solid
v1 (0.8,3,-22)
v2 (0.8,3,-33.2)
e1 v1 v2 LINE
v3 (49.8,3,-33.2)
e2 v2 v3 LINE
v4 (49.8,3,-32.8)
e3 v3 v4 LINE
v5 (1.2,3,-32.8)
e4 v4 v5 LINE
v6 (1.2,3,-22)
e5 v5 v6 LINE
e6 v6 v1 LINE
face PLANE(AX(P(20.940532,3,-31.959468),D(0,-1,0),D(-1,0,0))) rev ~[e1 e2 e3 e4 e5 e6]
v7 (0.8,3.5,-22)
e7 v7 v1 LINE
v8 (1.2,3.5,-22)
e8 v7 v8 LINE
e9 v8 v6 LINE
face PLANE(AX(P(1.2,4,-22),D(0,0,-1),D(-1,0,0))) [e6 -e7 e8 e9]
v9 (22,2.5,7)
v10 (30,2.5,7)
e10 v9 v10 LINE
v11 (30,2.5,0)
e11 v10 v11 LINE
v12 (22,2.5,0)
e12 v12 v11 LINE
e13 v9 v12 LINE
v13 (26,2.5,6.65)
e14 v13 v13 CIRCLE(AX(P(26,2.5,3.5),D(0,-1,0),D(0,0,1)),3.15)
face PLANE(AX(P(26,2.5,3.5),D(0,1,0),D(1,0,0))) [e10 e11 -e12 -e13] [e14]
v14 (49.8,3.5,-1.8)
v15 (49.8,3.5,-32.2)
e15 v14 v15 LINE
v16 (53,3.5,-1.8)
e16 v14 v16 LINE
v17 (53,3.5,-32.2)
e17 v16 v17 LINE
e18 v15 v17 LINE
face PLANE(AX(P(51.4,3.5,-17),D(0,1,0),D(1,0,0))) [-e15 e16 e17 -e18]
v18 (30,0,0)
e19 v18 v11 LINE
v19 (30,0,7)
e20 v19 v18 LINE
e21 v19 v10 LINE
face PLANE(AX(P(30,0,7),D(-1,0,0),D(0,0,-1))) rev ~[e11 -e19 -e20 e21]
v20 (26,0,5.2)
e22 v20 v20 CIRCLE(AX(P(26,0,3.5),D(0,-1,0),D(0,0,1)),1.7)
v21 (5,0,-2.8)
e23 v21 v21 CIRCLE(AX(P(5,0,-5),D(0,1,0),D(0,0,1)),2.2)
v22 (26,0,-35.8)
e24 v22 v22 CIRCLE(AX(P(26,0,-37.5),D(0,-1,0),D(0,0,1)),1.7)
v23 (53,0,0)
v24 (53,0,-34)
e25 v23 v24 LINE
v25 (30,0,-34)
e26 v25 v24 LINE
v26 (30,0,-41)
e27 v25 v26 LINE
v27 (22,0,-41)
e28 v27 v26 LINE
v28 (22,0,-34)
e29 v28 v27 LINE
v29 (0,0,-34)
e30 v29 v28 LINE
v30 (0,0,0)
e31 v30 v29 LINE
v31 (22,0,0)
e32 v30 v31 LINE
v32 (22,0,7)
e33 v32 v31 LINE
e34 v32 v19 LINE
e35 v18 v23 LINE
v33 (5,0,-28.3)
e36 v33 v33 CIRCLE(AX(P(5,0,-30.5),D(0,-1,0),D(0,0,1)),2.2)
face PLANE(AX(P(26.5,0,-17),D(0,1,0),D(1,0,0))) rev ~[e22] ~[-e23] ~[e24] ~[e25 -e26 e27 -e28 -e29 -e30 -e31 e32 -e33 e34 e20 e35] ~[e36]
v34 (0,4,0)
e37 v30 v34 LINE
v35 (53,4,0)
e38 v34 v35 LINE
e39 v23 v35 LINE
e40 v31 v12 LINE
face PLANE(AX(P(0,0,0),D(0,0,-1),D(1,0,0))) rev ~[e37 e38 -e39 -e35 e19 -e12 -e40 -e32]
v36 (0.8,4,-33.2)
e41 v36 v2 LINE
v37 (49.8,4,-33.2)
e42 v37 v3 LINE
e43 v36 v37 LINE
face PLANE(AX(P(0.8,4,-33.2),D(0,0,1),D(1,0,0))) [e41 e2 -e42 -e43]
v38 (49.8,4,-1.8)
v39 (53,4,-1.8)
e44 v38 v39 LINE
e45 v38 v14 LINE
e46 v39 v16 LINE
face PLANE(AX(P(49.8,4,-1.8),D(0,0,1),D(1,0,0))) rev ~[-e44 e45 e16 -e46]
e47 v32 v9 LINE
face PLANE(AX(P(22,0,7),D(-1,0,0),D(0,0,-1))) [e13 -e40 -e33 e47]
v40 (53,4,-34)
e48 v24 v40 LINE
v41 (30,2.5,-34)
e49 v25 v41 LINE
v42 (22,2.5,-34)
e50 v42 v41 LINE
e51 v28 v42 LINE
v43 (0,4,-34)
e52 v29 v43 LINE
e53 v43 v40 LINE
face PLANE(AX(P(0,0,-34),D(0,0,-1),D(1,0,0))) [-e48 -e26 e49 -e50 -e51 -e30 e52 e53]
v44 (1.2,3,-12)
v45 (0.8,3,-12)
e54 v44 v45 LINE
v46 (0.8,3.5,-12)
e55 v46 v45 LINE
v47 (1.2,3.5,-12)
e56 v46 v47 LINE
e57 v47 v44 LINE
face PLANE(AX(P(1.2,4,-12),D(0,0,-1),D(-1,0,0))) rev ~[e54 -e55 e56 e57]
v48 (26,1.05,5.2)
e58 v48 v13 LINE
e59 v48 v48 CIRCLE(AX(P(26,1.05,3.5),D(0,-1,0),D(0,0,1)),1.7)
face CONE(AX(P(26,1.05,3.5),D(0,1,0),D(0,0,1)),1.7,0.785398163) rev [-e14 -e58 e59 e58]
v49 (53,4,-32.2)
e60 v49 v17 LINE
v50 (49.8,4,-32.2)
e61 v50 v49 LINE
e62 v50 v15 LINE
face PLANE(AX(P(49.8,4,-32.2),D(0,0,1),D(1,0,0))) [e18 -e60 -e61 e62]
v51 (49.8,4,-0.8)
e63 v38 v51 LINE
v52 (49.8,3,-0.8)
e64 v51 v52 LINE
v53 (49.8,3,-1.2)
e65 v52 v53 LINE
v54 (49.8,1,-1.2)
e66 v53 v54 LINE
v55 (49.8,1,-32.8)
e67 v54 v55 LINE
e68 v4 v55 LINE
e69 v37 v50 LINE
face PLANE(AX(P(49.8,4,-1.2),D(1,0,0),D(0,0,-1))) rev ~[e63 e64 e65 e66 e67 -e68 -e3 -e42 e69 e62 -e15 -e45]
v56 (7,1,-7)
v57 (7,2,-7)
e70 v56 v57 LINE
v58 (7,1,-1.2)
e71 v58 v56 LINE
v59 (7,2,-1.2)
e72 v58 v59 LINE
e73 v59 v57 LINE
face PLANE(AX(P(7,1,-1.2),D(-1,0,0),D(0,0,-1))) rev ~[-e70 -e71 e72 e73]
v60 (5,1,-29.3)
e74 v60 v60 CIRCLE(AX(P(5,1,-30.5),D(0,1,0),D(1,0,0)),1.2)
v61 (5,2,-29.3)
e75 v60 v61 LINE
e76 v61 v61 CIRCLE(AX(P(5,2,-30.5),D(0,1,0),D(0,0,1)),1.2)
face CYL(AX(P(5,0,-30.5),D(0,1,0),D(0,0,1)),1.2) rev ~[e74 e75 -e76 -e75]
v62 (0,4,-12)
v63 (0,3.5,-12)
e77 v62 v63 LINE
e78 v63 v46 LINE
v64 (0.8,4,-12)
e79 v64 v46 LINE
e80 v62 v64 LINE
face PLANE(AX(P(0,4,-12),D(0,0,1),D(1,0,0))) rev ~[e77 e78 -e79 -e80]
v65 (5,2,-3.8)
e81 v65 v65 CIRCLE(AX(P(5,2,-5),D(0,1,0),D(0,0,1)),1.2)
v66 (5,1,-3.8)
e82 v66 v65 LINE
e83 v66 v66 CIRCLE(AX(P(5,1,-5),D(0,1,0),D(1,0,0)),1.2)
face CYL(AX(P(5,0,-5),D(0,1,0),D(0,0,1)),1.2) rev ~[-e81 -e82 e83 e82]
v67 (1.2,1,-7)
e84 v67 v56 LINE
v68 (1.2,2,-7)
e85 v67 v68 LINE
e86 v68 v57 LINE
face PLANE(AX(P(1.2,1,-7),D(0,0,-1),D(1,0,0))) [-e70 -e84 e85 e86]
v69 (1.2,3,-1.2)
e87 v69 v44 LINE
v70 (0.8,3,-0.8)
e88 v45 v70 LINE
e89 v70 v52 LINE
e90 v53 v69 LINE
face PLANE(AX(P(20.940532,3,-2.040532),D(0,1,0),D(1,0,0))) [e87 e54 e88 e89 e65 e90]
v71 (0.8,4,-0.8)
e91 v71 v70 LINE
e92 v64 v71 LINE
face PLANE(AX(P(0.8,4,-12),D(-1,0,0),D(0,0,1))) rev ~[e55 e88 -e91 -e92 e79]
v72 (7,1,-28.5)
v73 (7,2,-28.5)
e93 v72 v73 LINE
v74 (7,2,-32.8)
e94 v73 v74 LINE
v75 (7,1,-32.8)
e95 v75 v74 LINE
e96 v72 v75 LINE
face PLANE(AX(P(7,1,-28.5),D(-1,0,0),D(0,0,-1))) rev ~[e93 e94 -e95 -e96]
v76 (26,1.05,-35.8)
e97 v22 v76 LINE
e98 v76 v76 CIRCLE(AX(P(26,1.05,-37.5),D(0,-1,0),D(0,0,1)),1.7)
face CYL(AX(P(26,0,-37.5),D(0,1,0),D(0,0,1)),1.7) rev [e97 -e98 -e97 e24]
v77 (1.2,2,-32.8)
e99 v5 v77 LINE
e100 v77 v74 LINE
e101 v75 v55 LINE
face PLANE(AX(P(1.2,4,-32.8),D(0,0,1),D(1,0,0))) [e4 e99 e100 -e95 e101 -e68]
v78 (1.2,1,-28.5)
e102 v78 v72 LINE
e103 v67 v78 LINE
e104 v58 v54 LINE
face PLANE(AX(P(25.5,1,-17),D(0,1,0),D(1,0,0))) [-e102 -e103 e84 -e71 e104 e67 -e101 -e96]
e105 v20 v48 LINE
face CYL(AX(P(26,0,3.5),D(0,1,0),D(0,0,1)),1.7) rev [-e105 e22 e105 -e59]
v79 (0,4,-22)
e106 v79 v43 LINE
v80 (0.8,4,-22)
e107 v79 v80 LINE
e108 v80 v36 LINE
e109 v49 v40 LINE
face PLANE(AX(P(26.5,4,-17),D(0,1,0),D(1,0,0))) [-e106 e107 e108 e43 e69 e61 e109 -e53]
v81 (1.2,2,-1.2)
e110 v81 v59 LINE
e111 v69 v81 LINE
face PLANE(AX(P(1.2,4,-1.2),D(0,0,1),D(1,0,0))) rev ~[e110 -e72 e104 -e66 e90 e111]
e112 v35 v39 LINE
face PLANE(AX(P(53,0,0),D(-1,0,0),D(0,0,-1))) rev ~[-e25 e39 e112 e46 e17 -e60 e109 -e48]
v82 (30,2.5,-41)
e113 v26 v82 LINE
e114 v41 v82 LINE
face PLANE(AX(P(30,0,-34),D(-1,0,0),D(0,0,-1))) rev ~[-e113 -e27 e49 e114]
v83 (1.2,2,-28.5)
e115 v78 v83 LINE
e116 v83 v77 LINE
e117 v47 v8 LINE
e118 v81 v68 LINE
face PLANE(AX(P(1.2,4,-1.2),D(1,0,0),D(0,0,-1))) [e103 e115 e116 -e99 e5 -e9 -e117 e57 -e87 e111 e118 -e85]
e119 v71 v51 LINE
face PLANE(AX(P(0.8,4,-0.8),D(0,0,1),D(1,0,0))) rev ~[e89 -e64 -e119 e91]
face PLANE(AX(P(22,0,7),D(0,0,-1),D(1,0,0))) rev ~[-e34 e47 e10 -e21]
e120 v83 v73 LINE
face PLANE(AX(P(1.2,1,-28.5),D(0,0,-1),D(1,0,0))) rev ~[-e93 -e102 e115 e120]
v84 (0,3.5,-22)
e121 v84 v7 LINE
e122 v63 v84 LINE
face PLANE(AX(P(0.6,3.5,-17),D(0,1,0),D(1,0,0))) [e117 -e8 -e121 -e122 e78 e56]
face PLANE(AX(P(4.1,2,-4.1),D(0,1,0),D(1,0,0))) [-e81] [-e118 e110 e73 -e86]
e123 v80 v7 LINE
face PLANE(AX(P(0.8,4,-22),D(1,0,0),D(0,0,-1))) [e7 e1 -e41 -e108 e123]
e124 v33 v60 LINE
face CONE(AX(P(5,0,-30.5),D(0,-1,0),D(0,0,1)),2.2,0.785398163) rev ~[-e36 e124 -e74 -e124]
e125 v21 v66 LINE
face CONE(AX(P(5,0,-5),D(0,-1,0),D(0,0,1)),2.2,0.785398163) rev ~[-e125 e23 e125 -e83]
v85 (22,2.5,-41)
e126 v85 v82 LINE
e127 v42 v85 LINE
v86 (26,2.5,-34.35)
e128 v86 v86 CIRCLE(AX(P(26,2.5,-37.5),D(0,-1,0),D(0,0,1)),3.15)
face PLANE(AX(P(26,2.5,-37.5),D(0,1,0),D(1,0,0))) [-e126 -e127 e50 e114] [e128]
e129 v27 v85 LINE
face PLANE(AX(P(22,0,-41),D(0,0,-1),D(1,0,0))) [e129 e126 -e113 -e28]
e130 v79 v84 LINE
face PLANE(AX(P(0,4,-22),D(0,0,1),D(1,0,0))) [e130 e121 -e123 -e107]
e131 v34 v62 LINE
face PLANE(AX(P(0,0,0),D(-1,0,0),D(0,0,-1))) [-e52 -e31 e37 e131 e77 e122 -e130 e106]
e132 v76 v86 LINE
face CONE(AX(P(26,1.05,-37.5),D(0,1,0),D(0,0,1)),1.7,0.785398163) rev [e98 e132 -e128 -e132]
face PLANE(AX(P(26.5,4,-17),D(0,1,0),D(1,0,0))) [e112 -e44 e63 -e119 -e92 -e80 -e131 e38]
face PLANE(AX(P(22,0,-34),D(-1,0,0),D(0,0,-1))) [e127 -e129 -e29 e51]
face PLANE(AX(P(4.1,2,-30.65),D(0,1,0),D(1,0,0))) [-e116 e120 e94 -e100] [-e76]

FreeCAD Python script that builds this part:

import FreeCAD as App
import Part
import Sketcher
from FreeCAD import Vector
Q = App.Units.Quantity


def add_polygon(sketch, points):
    """Adds a closed chain of lines whose ends are joined by coincident constraints."""
    first, n = sketch.GeometryCount, len(points)
    for a, b in zip(points, points[1:] + points[:1]):
        sketch.addGeometry(Part.LineSegment(App.Vector(*a, 0), App.Vector(*b, 0)), False)
    for i in range(n):
        sketch.addConstraint(Sketcher.Constraint("Coincident", first + i, 2, first + (i + 1) % n, 1))

doc = App.newDocument("Part")
params = doc.addObject("Spreadsheet::Sheet", "Params")
for row, (alias, value) in enumerate([
    ("sketch1_width", "53 mm"),
    ("sketch1_height", "34 mm"),
    ("pad1_length", "4 mm"),
    ("sketch2_width", "8 mm"),
    ("sketch2_height", "7 mm"),
    ("pad2_length", "2.5 mm"),
    ("sketch3_width", "48.6 mm"),
    ("sketch3_height", "31.6 mm"),
    ("pocket1_length", "3 mm"),
    ("sketch4_width", "5.8 mm"),
    ("sketch4_height", "4.3 mm"),
    ("pad3_length", "1 mm"),
    ("sketch5_width", "49 mm"),
    ("sketch5_width2", "48.6 mm"),
    ("sketch5_height", "11.2 mm"),
    ("pocket2_length", "1 mm"),
    ("sketch6_height", "10 mm"),
    ("sketch6_width", "1.2 mm"),
    ("sketch6_width2", "3.2 mm"),
    ("sketch6_height2", "30.4 mm"),
    ("pocket3_length", "0.5 mm"),
    ("sketch7_width", "2.5 mm"),
    ("sketch7_height", "1.7 mm"),
    ("sketch7_width2", "1.05 mm"),
    ("groove_angle", "360 deg"),
    ("linearpattern_pitch", "41 mm"),
    ("sketch8_diameter", "2.4 mm"),
    ("hole_diameter", "2.4 mm"),
    ("hole_csink_diameter", "4.4 mm"),
], start=1):
    params.set(f"A{row}", alias)
    params.set(f"B{row}", "=" + value)
    params.setAlias(f"B{row}", alias)

body = doc.addObject("PartDesign::Body", "Body")

sketch1 = body.newObject("Sketcher::SketchObject", "Sketch")
sketch1.AttachmentSupport = (doc.getObject("XZ_Plane"), [""])
sketch1.MapMode = "FlatFace"
add_polygon(sketch1, [(0, -34), (0, 0), (53, 0), (53, -34)])
sketch1.addConstraint(Sketcher.Constraint("Vertical", 0))
sketch1.addConstraint(Sketcher.Constraint("Horizontal", 1))
sketch1.addConstraint(Sketcher.Constraint("Vertical", 2))
sketch1.addConstraint(Sketcher.Constraint("Horizontal", 3))
sketch1.addConstraint(Sketcher.Constraint("Coincident", 0, 2, -1, 1))
sketch1.addConstraint(Sketcher.Constraint("DistanceX", 1, 1, 1, 2, 53.0))
sketch1.addConstraint(Sketcher.Constraint("DistanceY", 0, 1, 0, 2, 34.0))
sketch1.setExpression("Constraints[9]", "Params.sketch1_width")
sketch1.setExpression("Constraints[10]", "Params.sketch1_height")
pad1 = body.newObject("PartDesign::Pad", "Pad")
pad1.Profile = sketch1
pad1.setExpression("Length", "Params.pad1_length")
pad1.Reversed = True

sketch2 = body.newObject("Sketcher::SketchObject", "Sketch001")
sketch2.AttachmentSupport = (doc.getObject("XZ_Plane"), [""])
sketch2.MapMode = "FlatFace"
add_polygon(sketch2, [(22, 0), (22, 7), (30, 7), (30, 0)])
add_polygon(sketch2, [(22, -41), (22, -34), (30, -34), (30, -41)])
sketch2.addConstraint(Sketcher.Constraint("Vertical", 0))
sketch2.addConstraint(Sketcher.Constraint("Horizontal", 1))
sketch2.addConstraint(Sketcher.Constraint("Vertical", 2))
sketch2.addConstraint(Sketcher.Constraint("Horizontal", 3))
sketch2.addConstraint(Sketcher.Constraint("Vertical", 4))
sketch2.addConstraint(Sketcher.Constraint("Horizontal", 5))
sketch2.addConstraint(Sketcher.Constraint("Vertical", 6))
sketch2.addConstraint(Sketcher.Constraint("Horizontal", 7))
sketch2.addConstraint(Sketcher.Constraint("PointOnObject", 2, 2, -1))
sketch2.addConstraint(Sketcher.Constraint("Vertical", 3, 2, 4, 2))
sketch2.addConstraint(Sketcher.Constraint("Vertical", 2, 2, 5, 2))
sketch2.addConstraint(Sketcher.Constraint("Equal", 2, 4))
sketch2.addConstraint(Sketcher.Constraint("DistanceX", 1, 1, 1, 2, 8.0))
sketch2.addConstraint(Sketcher.Constraint("DistanceY", 0, 1, 0, 2, 7.0))
sketch2.addConstraint(Sketcher.Constraint("DistanceX", -1, 1, 0, 2, 22.0))
sketch2.addConstraint(Sketcher.Constraint("DistanceY", 4, 2, -1, 1, 34.0))
sketch2.setExpression("Constraints[20]", "Params.sketch2_width")
sketch2.setExpression("Constraints[21]", "Params.sketch2_height")
pad2 = body.newObject("PartDesign::Pad", "Pad001")
pad2.Profile = sketch2
pad2.setExpression("Length", "Params.pad2_length")
pad2.Reversed = True

sketch3 = body.newObject("Sketcher::SketchObject", "Sketch002")
sketch3.AttachmentSupport = (doc.getObject("XZ_Plane"), [""])
sketch3.MapMode = "FlatFace"
sketch3.AttachmentOffset = App.Placement(Vector(0, 0, -4), App.Rotation())
add_polygon(sketch3, [(1, -33), (1, -1), (50, -1), (50, -33)])
sketch3.addConstraint(Sketcher.Constraint("Vertical", 0))
sketch3.addConstraint(Sketcher.Constraint("Horizontal", 1))
sketch3.addConstraint(Sketcher.Constraint("Vertical", 2))
sketch3.addConstraint(Sketcher.Constraint("Horizontal", 3))
sketch3.addConstraint(Sketcher.Constraint("DistanceX", 1, 1, 1, 2, 48.6))
sketch3.addConstraint(Sketcher.Constraint("DistanceY", 0, 1, 0, 2, 31.6))
sketch3.addConstraint(Sketcher.Constraint("DistanceX", -1, 1, 0, 2, 1.2))
sketch3.addConstraint(Sketcher.Constraint("DistanceY", 0, 2, -1, 1, 1.2))
sketch3.setExpression("Constraints[8]", "Params.sketch3_width")
sketch3.setExpression("Constraints[9]", "Params.sketch3_height")
pocket1 = body.newObject("PartDesign::Pocket", "Pocket")
pocket1.Profile = sketch3
pocket1.setExpression("Length", "Params.pocket1_length")
pocket1.Reversed = True

sketch4 = body.newObject("Sketcher::SketchObject", "Sketch003")
sketch4.AttachmentSupport = (doc.getObject("XZ_Plane"), [""])
sketch4.MapMode = "FlatFace"
sketch4.AttachmentOffset = App.Placement(Vector(0, 0, -1), App.Rotation())
add_polygon(sketch4, [(1.2, -32.8), (1.2, -28.5), (7, -28.5), (7, -32.8)])
add_polygon(sketch4, [(1.2, -7), (1.2, -1.2), (7, -1.2), (7, -7)])
sketch4.addConstraint(Sketcher.Constraint("Vertical", 0))
sketch4.addConstraint(Sketcher.Constraint("Horizontal", 1))
sketch4.addConstraint(Sketcher.Constraint("Vertical", 2))
sketch4.addConstraint(Sketcher.Constraint("Horizontal", 3))
sketch4.addConstraint(Sketcher.Constraint("Vertical", 4))
sketch4.addConstraint(Sketcher.Constraint("Horizontal", 5))
sketch4.addConstraint(Sketcher.Constraint("Vertical", 6))
sketch4.addConstraint(Sketcher.Constraint("Horizontal", 7))
sketch4.addConstraint(Sketcher.Constraint("Vertical", 3, 2, 4, 2))
sketch4.addConstraint(Sketcher.Constraint("Vertical", 2, 2, 5, 2))
sketch4.addConstraint(Sketcher.Constraint("Equal", 7, 4))
sketch4.addConstraint(Sketcher.Constraint("DistanceX", 1, 1, 1, 2, 5.8))
sketch4.addConstraint(Sketcher.Constraint("DistanceY", 0, 1, 0, 2, 4.3))
sketch4.addConstraint(Sketcher.Constraint("DistanceX", -1, 1, 1, 2, 7.0))
sketch4.addConstraint(Sketcher.Constraint("DistanceY", 6, 2, -1, 1, 7.0))
sketch4.addConstraint(Sketcher.Constraint("DistanceY", 0, 2, -1, 1, 28.5))
sketch4.setExpression("Constraints[19]", "Params.sketch4_width")
sketch4.setExpression("Constraints[20]", "Params.sketch4_height")
pad3 = body.newObject("PartDesign::Pad", "Pad002")
pad3.Profile = sketch4
pad3.setExpression("Length", "Params.pad3_length")
pad3.Reversed = True

sketch5 = body.newObject("Sketcher::SketchObject", "Sketch004")
sketch5.AttachmentSupport = (doc.getObject("XZ_Plane"), [""])
sketch5.MapMode = "FlatFace"
sketch5.AttachmentOffset = App.Placement(Vector(0, 0, -4), App.Rotation())
add_polygon(sketch5, [(1.2, -32.8), (49.8, -32.8), (49.8, -33.2), (0.8, -33.2), (0.8, -22), (1.2, -22)])
add_polygon(sketch5, [(49.8, -1.2), (1.2, -1.2), (1.2, -12), (0.8, -12), (0.8, -0.8), (49.8, -0.8)])
sketch5.addConstraint(Sketcher.Constraint("Horizontal", 0))
sketch5.addConstraint(Sketcher.Constraint("Vertical", 1))
sketch5.addConstraint(Sketcher.Constraint("Horizontal", 2))
sketch5.addConstraint(Sketcher.Constraint("Vertical", 3))
sketch5.addConstraint(Sketcher.Constraint("Horizontal", 4))
sketch5.addConstraint(Sketcher.Constraint("Vertical", 5))
sketch5.addConstraint(Sketcher.Constraint("Horizontal", 6))
sketch5.addConstraint(Sketcher.Constraint("Vertical", 7))
sketch5.addConstraint(Sketcher.Constraint("Horizontal", 8))
sketch5.addConstraint(Sketcher.Constraint("Vertical", 9))
sketch5.addConstraint(Sketcher.Constraint("Horizontal", 10))
sketch5.addConstraint(Sketcher.Constraint("Vertical", 11))
sketch5.addConstraint(Sketcher.Constraint("Vertical", 5, 2, 6, 2))
sketch5.addConstraint(Sketcher.Constraint("Vertical", 3, 2, 8, 2))
sketch5.addConstraint(Sketcher.Constraint("Vertical", 1, 2, 10, 2))
sketch5.addConstraint(Sketcher.Constraint("Equal", 8, 1))
sketch5.addConstraint(Sketcher.Constraint("Equal", 5, 7))
sketch5.addConstraint(Sketcher.Constraint("Equal", 3, 9))
sketch5.addConstraint(Sketcher.Constraint("DistanceX", 2, 2, 2, 1, 49.0))
sketch5.addConstraint(Sketcher.Constraint("DistanceX", 0, 1, 0, 2, 48.6))
sketch5.addConstraint(Sketcher.Constraint("DistanceY", 3, 1, 3, 2, 11.2))
sketch5.addConstraint(Sketcher.Constraint("DistanceY", 3, 2, -1, 1, 22.0))
sketch5.addConstraint(Sketcher.Constraint("DistanceY", 7, 2, -1, 1, 12.0))
sketch5.addConstraint(Sketcher.Constraint("DistanceX", -1, 1, 0, 2, 49.8))
sketch5.setExpression("Constraints[30]", "Params.sketch5_width")
sketch5.setExpression("Constraints[31]", "Params.sketch5_width2")
sketch5.setExpression("Constraints[32]", "Params.sketch5_height")
pocket2 = body.newObject("PartDesign::Pocket", "Pocket001")
pocket2.Profile = sketch5
pocket2.setExpression("Length", "Params.pocket2_length")
pocket2.Reversed = True

sketch6 = body.newObject("Sketcher::SketchObject", "Sketch005")
sketch6.AttachmentSupport = (doc.getObject("XZ_Plane"), [""])
sketch6.MapMode = "FlatFace"
sketch6.AttachmentOffset = App.Placement(Vector(0, 0, -4), App.Rotation())
add_polygon(sketch6, [(0, -22), (0, -12), (1.2, -12), (1.2, -22)])
add_polygon(sketch6, [(49.8, -32.2), (49.8, -1.8), (53, -1.8), (53, -32.2)])
sketch6.addConstraint(Sketcher.Constraint("Vertical", 0))
sketch6.addConstraint(Sketcher.Constraint("Horizontal", 1))
sketch6.addConstraint(Sketcher.Constraint("Vertical", 2))
sketch6.addConstraint(Sketcher.Constraint("Horizontal", 3))
sketch6.addConstraint(Sketcher.Constraint("Vertical", 4))
sketch6.addConstraint(Sketcher.Constraint("Horizontal", 5))
sketch6.addConstraint(Sketcher.Constraint("Vertical", 6))
sketch6.addConstraint(Sketcher.Constraint("Horizontal", 7))
sketch6.addConstraint(Sketcher.Constraint("PointOnObject", 0, 2, -2))
sketch6.addConstraint(Sketcher.Constraint("DistanceY", 0, 1, 0, 2, 10.0))
sketch6.addConstraint(Sketcher.Constraint("DistanceX", 1, 1, 1, 2, 1.2))
sketch6.addConstraint(Sketcher.Constraint("DistanceX", 5, 1, 5, 2, 3.2))
sketch6.addConstraint(Sketcher.Constraint("DistanceY", 4, 1, 4, 2, 30.4))
sketch6.addConstraint(Sketcher.Constraint("DistanceY", 0, 2, -1, 1, 12.0))
sketch6.addConstraint(Sketcher.Constraint("DistanceX", -1, 1, 5, 2, 53.0))
sketch6.addConstraint(Sketcher.Constraint("DistanceY", 4, 2, -1, 1, 1.8))
sketch6.setExpression("Constraints[17]", "Params.sketch6_height")
sketch6.setExpression("Constraints[18]", "Params.sketch6_width")
sketch6.setExpression("Constraints[19]", "Params.sketch6_width2")
sketch6.setExpression("Constraints[20]", "Params.sketch6_height2")
pocket3 = body.newObject("PartDesign::Pocket", "Pocket002")
pocket3.Profile = sketch6
pocket3.setExpression("Length", "Params.pocket3_length")
pocket3.Reversed = True

sketch7 = body.newObject("Sketcher::SketchObject", "Sketch006")
sketch7.AttachmentSupport = (doc.getObject("YZ_Plane"), [""])
sketch7.MapMode = "FlatFace"
sketch7.AttachmentOffset = App.Placement(Vector(0, 0, 26), App.Rotation())
add_polygon(sketch7, [(0, -37.5), (2.5, -37.5), (2.5, -34.4), (1.1, -35.8), (0, -35.8)])
sketch7.addGeometry(Part.LineSegment(Vector(2.5, -37.5, 0), Vector(0, -37.5, 0)), True)
sketch7.addConstraint(Sketcher.Constraint("Horizontal", 0))
sketch7.addConstraint(Sketcher.Constraint("Vertical", 1))
sketch7.addConstraint(Sketcher.Constraint("Horizontal", 3))
sketch7.addConstraint(Sketcher.Constraint("Vertical", 4))
sketch7.addConstraint(Sketcher.Constraint("Horizontal", 5))
sketch7.addConstraint(Sketcher.Constraint("Coincident", 5, 1, 0, 2))
sketch7.addConstraint(Sketcher.Constraint("PointOnObject", 3, 2, -2))
sketch7.addConstraint(Sketcher.Constraint("PointOnObject", 5, 2, -2))
sketch7.addConstraint(Sketcher.Constraint("Angle", 2, Q("-135 deg")))
sketch7.addConstraint(Sketcher.Constraint("DistanceX", 0, 1, 0, 2, 2.5))
sketch7.addConstraint(Sketcher.Constraint("DistanceY", 4, 2, 4, 1, 1.7))
sketch7.addConstraint(Sketcher.Constraint("DistanceX", 3, 2, 3, 1, 1.05))
sketch7.addConstraint(Sketcher.Constraint("DistanceY", 0, 2, -1, 1, 37.5))
sketch7.setExpression("Constraints[14]", "Params.sketch7_width")
sketch7.setExpression("Constraints[15]", "Params.sketch7_height")
sketch7.setExpression("Constraints[16]", "Params.sketch7_width2")
groove = body.newObject("PartDesign::Groove", "Groove")
groove.Profile = sketch7
groove.ReferenceAxis = (sketch7, ["Axis0"])
groove.setExpression("Angle", "Params.groove_angle")
doc.recompute()

linearpattern = body.newObject("PartDesign::LinearPattern", "LinearPattern")
linearpattern.Originals = [groove]
linearpattern.Direction = (doc.getObject("Z_Axis"), [""])
linearpattern.Mode = "offset"
linearpattern.setExpression("Offset", "Params.linearpattern_pitch")
linearpattern.Occurrences = 2
body.Tip = linearpattern

sketch8 = body.newObject("Sketcher::SketchObject", "Sketch007")
sketch8.AttachmentSupport = (doc.getObject("XZ_Plane"), [""])
sketch8.MapMode = "FlatFace"
sketch8.addGeometry(Part.Circle(Vector(5, -5, 0), Vector(0, 0, 1), 1.2), False)
sketch8.addGeometry(Part.Circle(Vector(5, -30.5, 0), Vector(0, 0, 1), 1.2), False)
sketch8.addConstraint(Sketcher.Constraint("Equal", 0, 1))
sketch8.addConstraint(Sketcher.Constraint("Vertical", 0, 3, 1, 3))
sketch8.addConstraint(Sketcher.Constraint("Diameter", 0, 2.4))
sketch8.addConstraint(Sketcher.Constraint("DistanceX", -1, 1, 0, 3, 5.0))
sketch8.addConstraint(Sketcher.Constraint("DistanceY", 0, 3, -1, 1, 5.0))
sketch8.addConstraint(Sketcher.Constraint("DistanceY", 1, 3, -1, 1, 30.5))
sketch8.setExpression("Constraints[2]", "Params.sketch8_diameter")
doc.recompute()
hole = body.newObject("PartDesign::Hole", "Hole")
hole.Profile = sketch8
hole.ThreadType = "None"
hole.setExpression("Diameter", "Params.hole_diameter")
hole.DepthType = "ThroughAll"
hole.HoleCutType = "Countersink"
hole.setExpression("HoleCutDiameter", "Params.hole_csink_diameter")
hole.HoleCutCountersinkAngle = 90

doc.recompute()
